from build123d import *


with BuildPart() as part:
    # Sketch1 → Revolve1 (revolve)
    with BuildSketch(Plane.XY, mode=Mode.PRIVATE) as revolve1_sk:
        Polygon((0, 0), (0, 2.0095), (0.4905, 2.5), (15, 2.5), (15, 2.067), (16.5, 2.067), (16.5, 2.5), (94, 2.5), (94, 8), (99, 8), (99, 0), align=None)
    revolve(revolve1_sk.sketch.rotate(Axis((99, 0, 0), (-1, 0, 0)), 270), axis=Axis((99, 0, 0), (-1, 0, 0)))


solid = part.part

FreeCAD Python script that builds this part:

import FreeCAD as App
import Part
import Sketcher

V = App.Vector
Q = App.Units.Quantity


def add_polygon(sketch, points):
    """Adds a closed chain of lines whose ends are joined by coincident constraints."""
    first, n = sketch.GeometryCount, len(points)
    for a, b in zip(points, points[1:] + points[:1]):
        sketch.addGeometry(Part.LineSegment(App.Vector(*a, 0), App.Vector(*b, 0)), False)
    for i in range(n):
        sketch.addConstraint(Sketcher.Constraint("Coincident", first + i, 2, first + (i + 1) % n, 1))

doc = App.newDocument("Part")
body = doc.addObject("PartDesign::Body", "Body")

# Sketch on XY plane
sketch1 = doc.addObject("Sketcher::SketchObject", "Sketch")
body.addObject(sketch1)
sketch1.AttachmentSupport = (doc.XY_Plane, [""])
sketch1.MapMode = "FlatFace"
add_polygon(sketch1, [(0, 2.01), (0, 0), (99, 0), (99, 8), (94, 8), (94, 2.5), (16.5, 2.5), (16.5, 2.07), (15, 2.07), (15, 2.5), (0.49, 2.5)])  # lines 0-10
sketch1.addConstraint([
    Sketcher.Constraint("Vertical", 0),
    Sketcher.Constraint("Horizontal", 1),
    Sketcher.Constraint("Vertical", 2),
    Sketcher.Constraint("Horizontal", 3),
    Sketcher.Constraint("Vertical", 4),
    Sketcher.Constraint("Horizontal", 5),
    Sketcher.Constraint("Vertical", 6),
    Sketcher.Constraint("Horizontal", 7),
    Sketcher.Constraint("Vertical", 8),
    Sketcher.Constraint("Horizontal", 9),
    Sketcher.Constraint("Coincident", 0, 2, -1, 1),
    Sketcher.Constraint("Horizontal", 5, 2, 8, 2),
    Sketcher.Constraint("DistanceX", 1, 1, 1, 2, 99.0),
    Sketcher.Constraint("DistanceX", 3, 2, 3, 1, 5.0),
    Sketcher.Constraint("DistanceY", 2, 1, 2, 2, 8.0),
    Sketcher.Constraint("Angle", 10, Q("-135 deg")),
    Sketcher.Constraint("DistanceX", 5, 2, 5, 1, 77.5),
    Sketcher.Constraint("DistanceX", 7, 2, 7, 1, 1.5),
    Sketcher.Constraint("DistanceY", 4, 2, 4, 1, 5.5),
    Sketcher.Constraint("DistanceY", 6, 2, 6, 1, 0.433),
    Sketcher.Constraint("DistanceX", 9, 2, 9, 1, 14.5095),
])
revolution = doc.addObject("PartDesign::Revolution", "Revolution")
body.addObject(revolution)
revolution.Profile = sketch1
revolution.ReferenceAxis = (sketch1, ["H_Axis"])
revolution.Angle = 360

doc.recompute()
